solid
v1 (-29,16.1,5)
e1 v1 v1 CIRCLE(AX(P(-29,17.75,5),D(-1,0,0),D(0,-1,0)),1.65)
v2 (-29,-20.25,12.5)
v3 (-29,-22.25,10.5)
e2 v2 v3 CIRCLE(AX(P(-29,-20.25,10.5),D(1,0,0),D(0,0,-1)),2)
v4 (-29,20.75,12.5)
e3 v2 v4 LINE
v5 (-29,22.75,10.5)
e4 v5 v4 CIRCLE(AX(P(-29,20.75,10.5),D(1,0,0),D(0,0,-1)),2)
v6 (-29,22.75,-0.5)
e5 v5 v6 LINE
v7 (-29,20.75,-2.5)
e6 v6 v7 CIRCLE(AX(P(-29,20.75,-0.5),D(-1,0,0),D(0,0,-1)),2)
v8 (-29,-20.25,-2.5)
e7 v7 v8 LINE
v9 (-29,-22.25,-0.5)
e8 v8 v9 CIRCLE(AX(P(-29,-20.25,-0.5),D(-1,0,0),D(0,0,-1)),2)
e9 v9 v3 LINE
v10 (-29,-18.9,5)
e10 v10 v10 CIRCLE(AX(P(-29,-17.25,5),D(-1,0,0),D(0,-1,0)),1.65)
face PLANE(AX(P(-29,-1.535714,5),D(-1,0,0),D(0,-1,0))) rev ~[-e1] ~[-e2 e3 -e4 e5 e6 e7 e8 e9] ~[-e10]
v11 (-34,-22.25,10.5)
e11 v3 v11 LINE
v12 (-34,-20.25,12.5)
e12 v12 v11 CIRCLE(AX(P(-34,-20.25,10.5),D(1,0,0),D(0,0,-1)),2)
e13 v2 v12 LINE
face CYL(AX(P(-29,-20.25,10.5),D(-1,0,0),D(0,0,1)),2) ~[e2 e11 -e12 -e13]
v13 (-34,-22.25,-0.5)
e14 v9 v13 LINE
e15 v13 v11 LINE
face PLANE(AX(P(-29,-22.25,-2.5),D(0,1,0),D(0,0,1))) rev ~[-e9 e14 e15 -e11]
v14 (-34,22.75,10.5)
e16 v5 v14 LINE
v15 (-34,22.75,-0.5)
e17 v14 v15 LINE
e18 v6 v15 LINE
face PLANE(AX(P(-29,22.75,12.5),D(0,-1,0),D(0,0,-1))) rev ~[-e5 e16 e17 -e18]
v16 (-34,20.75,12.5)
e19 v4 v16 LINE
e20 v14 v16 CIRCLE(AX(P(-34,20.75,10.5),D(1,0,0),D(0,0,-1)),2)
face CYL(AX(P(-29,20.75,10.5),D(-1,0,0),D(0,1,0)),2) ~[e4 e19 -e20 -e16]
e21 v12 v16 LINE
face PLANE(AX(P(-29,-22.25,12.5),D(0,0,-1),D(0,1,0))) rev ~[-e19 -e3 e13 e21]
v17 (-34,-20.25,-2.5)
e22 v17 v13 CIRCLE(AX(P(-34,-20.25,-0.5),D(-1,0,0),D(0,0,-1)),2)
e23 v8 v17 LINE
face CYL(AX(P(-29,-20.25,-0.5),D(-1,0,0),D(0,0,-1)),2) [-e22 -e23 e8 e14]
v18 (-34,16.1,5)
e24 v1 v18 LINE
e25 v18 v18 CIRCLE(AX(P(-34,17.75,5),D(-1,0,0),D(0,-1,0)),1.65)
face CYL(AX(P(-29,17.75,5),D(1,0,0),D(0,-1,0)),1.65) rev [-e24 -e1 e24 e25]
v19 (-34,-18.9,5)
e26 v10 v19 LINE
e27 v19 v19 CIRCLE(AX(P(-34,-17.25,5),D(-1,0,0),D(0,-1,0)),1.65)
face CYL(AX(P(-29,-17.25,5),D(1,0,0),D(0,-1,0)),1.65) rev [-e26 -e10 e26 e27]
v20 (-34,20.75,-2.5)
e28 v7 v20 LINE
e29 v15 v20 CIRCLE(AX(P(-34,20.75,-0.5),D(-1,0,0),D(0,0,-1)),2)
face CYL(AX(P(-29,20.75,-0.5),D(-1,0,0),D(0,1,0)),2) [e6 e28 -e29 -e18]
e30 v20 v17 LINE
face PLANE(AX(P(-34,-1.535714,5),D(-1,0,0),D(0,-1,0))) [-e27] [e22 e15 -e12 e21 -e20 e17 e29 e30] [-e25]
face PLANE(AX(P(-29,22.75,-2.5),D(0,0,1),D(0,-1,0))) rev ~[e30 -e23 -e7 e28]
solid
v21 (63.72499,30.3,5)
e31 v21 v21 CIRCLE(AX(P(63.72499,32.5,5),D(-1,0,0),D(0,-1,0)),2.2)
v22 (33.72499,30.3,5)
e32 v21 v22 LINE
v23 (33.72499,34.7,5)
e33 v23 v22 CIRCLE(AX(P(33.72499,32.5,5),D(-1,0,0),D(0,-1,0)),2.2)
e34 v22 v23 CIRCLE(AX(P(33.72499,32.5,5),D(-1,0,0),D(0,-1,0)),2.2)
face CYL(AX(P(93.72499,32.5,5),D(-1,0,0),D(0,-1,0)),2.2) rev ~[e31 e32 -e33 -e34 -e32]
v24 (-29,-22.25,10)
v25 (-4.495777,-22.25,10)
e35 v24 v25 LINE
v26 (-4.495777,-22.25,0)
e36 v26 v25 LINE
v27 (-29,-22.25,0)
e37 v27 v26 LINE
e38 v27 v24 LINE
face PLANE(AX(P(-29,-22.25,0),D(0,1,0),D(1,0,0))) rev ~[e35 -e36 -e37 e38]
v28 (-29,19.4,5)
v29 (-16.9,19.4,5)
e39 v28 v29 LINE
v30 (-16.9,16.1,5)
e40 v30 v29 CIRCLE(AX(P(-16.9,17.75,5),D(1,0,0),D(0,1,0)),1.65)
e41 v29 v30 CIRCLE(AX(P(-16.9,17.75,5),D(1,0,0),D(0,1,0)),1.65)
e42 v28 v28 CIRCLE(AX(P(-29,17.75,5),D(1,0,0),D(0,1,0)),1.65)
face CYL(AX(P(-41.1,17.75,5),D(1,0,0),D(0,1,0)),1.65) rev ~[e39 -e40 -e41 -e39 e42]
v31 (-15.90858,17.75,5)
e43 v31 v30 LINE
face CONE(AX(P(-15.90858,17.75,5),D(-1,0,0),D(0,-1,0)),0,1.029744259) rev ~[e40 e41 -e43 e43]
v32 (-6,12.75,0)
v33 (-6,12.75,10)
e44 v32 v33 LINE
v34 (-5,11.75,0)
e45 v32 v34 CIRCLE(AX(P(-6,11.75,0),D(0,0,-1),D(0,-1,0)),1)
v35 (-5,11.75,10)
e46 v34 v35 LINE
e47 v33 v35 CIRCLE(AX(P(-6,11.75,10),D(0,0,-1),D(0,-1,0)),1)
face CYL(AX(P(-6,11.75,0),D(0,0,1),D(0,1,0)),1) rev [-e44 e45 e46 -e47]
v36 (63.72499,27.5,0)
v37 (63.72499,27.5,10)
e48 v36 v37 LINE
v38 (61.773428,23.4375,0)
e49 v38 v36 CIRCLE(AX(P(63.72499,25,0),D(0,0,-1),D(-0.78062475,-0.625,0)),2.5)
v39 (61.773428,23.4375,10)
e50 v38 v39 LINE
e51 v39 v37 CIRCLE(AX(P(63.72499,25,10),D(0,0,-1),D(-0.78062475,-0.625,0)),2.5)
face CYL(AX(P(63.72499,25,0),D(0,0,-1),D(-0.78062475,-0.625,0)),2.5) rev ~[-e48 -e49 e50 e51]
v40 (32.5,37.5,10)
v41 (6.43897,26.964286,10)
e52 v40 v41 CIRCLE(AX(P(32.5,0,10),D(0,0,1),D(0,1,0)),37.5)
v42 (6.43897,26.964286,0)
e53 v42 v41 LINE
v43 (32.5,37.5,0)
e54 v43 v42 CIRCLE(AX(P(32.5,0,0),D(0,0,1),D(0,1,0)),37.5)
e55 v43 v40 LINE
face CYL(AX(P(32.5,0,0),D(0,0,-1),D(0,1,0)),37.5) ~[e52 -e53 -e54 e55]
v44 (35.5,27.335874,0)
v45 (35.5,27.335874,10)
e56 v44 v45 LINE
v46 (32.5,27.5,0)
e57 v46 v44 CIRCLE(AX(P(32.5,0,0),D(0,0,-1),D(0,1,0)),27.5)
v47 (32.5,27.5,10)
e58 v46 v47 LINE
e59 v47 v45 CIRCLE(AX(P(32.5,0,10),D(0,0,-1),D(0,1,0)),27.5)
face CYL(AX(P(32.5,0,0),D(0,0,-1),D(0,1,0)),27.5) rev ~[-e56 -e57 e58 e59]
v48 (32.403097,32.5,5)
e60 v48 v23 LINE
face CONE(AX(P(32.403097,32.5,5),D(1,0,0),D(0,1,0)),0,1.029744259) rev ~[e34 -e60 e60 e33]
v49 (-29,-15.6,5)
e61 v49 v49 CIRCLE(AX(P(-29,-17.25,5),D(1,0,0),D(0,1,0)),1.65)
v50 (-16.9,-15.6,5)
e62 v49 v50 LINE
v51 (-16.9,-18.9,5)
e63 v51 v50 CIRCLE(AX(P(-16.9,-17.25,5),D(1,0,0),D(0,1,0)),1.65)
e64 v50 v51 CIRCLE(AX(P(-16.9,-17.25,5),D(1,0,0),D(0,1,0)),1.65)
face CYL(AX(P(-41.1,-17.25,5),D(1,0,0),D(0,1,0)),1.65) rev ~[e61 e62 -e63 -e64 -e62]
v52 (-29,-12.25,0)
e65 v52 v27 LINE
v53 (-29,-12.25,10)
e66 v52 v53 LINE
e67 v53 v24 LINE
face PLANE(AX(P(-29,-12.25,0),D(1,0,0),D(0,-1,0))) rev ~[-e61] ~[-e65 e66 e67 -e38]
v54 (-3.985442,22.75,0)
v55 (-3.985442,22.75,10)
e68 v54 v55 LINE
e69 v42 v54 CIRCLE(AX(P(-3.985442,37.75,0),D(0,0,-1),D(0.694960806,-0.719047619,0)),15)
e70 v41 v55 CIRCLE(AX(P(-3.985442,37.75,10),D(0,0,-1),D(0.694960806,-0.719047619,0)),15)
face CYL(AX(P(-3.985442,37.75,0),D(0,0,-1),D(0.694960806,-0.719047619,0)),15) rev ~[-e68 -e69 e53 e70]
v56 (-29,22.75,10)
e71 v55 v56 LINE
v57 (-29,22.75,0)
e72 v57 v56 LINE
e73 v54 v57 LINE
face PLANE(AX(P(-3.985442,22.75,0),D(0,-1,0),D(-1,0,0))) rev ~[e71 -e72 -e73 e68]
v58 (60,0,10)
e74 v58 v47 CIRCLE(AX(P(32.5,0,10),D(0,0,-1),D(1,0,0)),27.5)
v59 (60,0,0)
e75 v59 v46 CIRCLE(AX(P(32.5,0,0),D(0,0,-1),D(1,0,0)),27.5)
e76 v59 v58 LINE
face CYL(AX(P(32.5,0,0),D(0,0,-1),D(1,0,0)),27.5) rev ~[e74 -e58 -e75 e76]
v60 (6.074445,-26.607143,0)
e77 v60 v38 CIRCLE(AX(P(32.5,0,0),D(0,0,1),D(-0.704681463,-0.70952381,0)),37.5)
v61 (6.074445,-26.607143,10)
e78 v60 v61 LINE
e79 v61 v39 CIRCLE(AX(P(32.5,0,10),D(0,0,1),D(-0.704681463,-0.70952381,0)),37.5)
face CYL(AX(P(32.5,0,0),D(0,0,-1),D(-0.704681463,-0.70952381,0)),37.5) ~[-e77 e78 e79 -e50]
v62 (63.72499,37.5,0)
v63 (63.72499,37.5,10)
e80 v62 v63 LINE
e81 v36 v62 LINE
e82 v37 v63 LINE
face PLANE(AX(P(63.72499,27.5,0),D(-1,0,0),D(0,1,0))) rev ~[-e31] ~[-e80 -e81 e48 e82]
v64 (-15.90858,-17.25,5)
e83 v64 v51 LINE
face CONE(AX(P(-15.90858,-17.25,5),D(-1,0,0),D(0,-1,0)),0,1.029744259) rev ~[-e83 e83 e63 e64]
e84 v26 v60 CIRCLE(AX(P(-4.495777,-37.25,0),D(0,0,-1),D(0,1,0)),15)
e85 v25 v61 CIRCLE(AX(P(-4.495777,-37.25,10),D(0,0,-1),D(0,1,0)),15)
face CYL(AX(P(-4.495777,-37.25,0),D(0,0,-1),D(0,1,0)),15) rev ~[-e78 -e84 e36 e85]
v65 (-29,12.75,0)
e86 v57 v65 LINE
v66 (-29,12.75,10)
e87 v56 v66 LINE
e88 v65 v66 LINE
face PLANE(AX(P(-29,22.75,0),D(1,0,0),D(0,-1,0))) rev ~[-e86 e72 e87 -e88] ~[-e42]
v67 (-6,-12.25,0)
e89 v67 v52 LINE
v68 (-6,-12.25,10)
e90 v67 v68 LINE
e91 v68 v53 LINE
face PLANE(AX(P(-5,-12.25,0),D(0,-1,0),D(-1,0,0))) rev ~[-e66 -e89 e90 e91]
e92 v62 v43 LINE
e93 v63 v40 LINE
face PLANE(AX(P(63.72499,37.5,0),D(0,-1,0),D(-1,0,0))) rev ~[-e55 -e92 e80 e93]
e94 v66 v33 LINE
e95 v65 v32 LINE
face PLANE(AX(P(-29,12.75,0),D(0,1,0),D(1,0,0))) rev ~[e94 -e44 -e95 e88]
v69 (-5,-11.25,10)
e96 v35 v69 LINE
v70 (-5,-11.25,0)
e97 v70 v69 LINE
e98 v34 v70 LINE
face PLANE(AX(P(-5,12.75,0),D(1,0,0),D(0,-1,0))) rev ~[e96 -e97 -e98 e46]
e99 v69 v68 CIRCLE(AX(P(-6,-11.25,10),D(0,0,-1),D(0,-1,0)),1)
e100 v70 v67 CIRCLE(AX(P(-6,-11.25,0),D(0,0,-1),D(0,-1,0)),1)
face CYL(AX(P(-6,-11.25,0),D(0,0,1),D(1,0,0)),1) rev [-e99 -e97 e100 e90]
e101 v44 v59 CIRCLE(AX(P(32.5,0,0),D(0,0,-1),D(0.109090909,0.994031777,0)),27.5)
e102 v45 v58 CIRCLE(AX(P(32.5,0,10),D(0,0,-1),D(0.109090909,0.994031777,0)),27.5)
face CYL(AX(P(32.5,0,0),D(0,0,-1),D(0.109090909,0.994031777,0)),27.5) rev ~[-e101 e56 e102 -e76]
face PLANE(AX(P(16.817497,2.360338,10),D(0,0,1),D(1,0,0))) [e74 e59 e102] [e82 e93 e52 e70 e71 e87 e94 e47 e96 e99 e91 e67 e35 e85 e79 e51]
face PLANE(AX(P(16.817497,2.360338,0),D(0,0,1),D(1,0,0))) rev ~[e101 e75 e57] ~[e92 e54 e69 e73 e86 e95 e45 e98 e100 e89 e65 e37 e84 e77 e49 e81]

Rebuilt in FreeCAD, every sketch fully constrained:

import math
import FreeCAD as App
import Part
import Sketcher

V = App.Vector


def edges_at(feature, points):
    """Names of the edges that pass closest to the given points."""
    edges = feature.Shape.Edges
    near = lambda p: min(range(len(edges)), key=lambda i: edges[i].distToShape(Part.Vertex(*p))[0])
    return sorted({f"Edge{near(p) + 1}" for p in points})


def add_polygon(sketch, points):
    """Adds a closed chain of lines whose ends are joined by coincident constraints."""
    first, n = sketch.GeometryCount, len(points)
    for a, b in zip(points, points[1:] + points[:1]):
        sketch.addGeometry(Part.LineSegment(App.Vector(*a, 0), App.Vector(*b, 0)), False)
    for i in range(n):
        sketch.addConstraint(Sketcher.Constraint("Coincident", first + i, 2, first + (i + 1) % n, 1))

doc = App.newDocument("Part")
body = doc.addObject("PartDesign::Body", "Body")

# Sketch on XY plane
sketch1 = doc.addObject("Sketcher::SketchObject", "Sketch")
body.addObject(sketch1)
sketch1.AttachmentSupport = (doc.XY_Plane, [""])
sketch1.MapMode = "FlatFace"
sketch1.addGeometry(Part.LineSegment(V(-29, 12.8, 0), V(-5, 12.8, 0)), False)
sketch1.addGeometry(Part.LineSegment(V(-5, 12.8, 0), V(-5, -12.2, 0)), False)
sketch1.addGeometry(Part.LineSegment(V(-5, -12.2, 0), V(-29, -12.2, 0)), False)
sketch1.addGeometry(Part.LineSegment(V(-29, -12.2, 0), V(-29, -22.2, 0)), False)
sketch1.addGeometry(Part.LineSegment(V(-29, -22.2, 0), V(-4.5, -22.2, 0)), False)
sketch1.addGeometry(Part.ArcOfCircle(Part.Circle(V(-4.5, -37.3, 0), V(0, 0, 1), 15), math.radians(45), math.radians(90)), False)
sketch1.addGeometry(Part.ArcOfCircle(Part.Circle(V(32.5, 0, 0), V(0, 0, 1), 37.5), math.radians(-135), math.radians(39)), False)
sketch1.addGeometry(Part.ArcOfCircle(Part.Circle(V(63.7, 25, 0), V(0, 0, 1), 2.5), math.radians(90), math.radians(219)), False)
sketch1.addGeometry(Part.LineSegment(V(63.7, 27.5, 0), V(63.7, 37.5, 0)), False)
sketch1.addGeometry(Part.LineSegment(V(63.7, 37.5, 0), V(32.5, 37.5, 0)), False)
sketch1.addGeometry(Part.ArcOfCircle(Part.Circle(V(32.5, 0, 0), V(0, 0, 1), 37.5), math.radians(90), math.radians(134)), False)
sketch1.addGeometry(Part.ArcOfCircle(Part.Circle(V(-4, 37.8, 0), V(0, 0, 1), 15), math.radians(-90), math.radians(-46)), False)
sketch1.addGeometry(Part.LineSegment(V(-4, 22.8, 0), V(-29, 22.8, 0)), False)
sketch1.addGeometry(Part.LineSegment(V(-29, 22.8, 0), V(-29, 12.8, 0)), False)
sketch1.addGeometry(Part.ArcOfCircle(Part.Circle(V(32.5, 0, 0), V(0, 0, 1), 27.5), math.radians(0), math.radians(84)), False)
sketch1.addGeometry(Part.ArcOfCircle(Part.Circle(V(32.5, 0, 0), V(0, 0, 1), 27.5), math.radians(90), math.radians(360)), False)
sketch1.addGeometry(Part.ArcOfCircle(Part.Circle(V(32.5, 0, 0), V(0, 0, 1), 27.5), math.radians(83.74), math.radians(90)), False)
sketch1.addConstraint(Sketcher.Constraint("Coincident", 0, 2, 1, 1))
sketch1.addConstraint(Sketcher.Constraint("Coincident", 1, 2, 2, 1))
sketch1.addConstraint(Sketcher.Constraint("Coincident", 2, 2, 3, 1))
sketch1.addConstraint(Sketcher.Constraint("Coincident", 3, 2, 4, 1))
sketch1.addConstraint(Sketcher.Constraint("Tangent", 4, 2, 5, 2))
sketch1.addConstraint(Sketcher.Constraint("Tangent", 5, 1, 6, 1))
sketch1.addConstraint(Sketcher.Constraint("Tangent", 6, 2, 7, 2))
sketch1.addConstraint(Sketcher.Constraint("Coincident", 7, 1, 8, 1))
sketch1.addConstraint(Sketcher.Constraint("Coincident", 8, 2, 9, 1))
sketch1.addConstraint(Sketcher.Constraint("Tangent", 9, 2, 10, 1))
sketch1.addConstraint(Sketcher.Constraint("Tangent", 10, 2, 11, 2))
sketch1.addConstraint(Sketcher.Constraint("Tangent", 11, 1, 12, 1))
sketch1.addConstraint(Sketcher.Constraint("Coincident", 12, 2, 13, 1))
sketch1.addConstraint(Sketcher.Constraint("Coincident", 13, 2, 0, 1))
sketch1.addConstraint(Sketcher.Constraint("Tangent", 14, 1, 15, 2))
sketch1.addConstraint(Sketcher.Constraint("Tangent", 15, 1, 16, 2))
sketch1.addConstraint(Sketcher.Constraint("Tangent", 16, 1, 14, 2))
sketch1.addConstraint(Sketcher.Constraint("Horizontal", 0))
sketch1.addConstraint(Sketcher.Constraint("Vertical", 1))
sketch1.addConstraint(Sketcher.Constraint("Horizontal", 2))
sketch1.addConstraint(Sketcher.Constraint("Vertical", 3))
sketch1.addConstraint(Sketcher.Constraint("Horizontal", 4))
sketch1.addConstraint(Sketcher.Constraint("Vertical", 8))
sketch1.addConstraint(Sketcher.Constraint("Horizontal", 9))
sketch1.addConstraint(Sketcher.Constraint("Horizontal", 12))
sketch1.addConstraint(Sketcher.Constraint("Vertical", 13))
sketch1.addConstraint(Sketcher.Constraint("Coincident", 10, 3, 6, 3))
sketch1.addConstraint(Sketcher.Constraint("Coincident", 14, 3, 6, 3))
sketch1.addConstraint(Sketcher.Constraint("Equal", 6, 10))
sketch1.addConstraint(Sketcher.Constraint("Equal", 5, 11))
sketch1.addConstraint(Sketcher.Constraint("PointOnObject", 6, 3, -1))
sketch1.addConstraint(Sketcher.Constraint("PointOnObject", 14, 1, -1))
sketch1.addConstraint(Sketcher.Constraint("Horizontal", 7, 1, 15, 1))
sketch1.addConstraint(Sketcher.Constraint("Vertical", 3, 2, 12, 2))
sketch1.addConstraint(Sketcher.Constraint("Vertical", 9, 2, 15, 1))
sketch1.addConstraint(Sketcher.Constraint("Equal", 3, 8))
sketch1.addConstraint(Sketcher.Constraint("Equal", 8, 13))
sketch1.addConstraint(Sketcher.Constraint("Radius", 5, 15.0))
sketch1.addConstraint(Sketcher.Constraint("Radius", 6, 37.5))
sketch1.addConstraint(Sketcher.Constraint("Radius", 7, 2.5))
sketch1.addConstraint(Sketcher.Constraint("Radius", 14, 27.5))
sketch1.addConstraint(Sketcher.Constraint("DistanceX", 0, 1, 0, 2, 24.0))
sketch1.addConstraint(Sketcher.Constraint("DistanceY", 1, 2, 1, 1, 25.0))
sketch1.addConstraint(Sketcher.Constraint("DistanceX", 0, 2, -1, 1, 5.0))
sketch1.addConstraint(Sketcher.Constraint("DistanceX", -1, 1, 14, 1, 60.0))
sketch1.addConstraint(Sketcher.Constraint("DistanceX", 15, 1, 16, 1, 3.0))
sketch1.addConstraint(Sketcher.Constraint("DistanceY", 5, 3, -1, 1, 37.25))
sketch1.addConstraint(Sketcher.Constraint("DistanceX", 9, 2, 9, 1, 31.22499))
pad1 = doc.addObject("PartDesign::Pad", "Pad")
body.addObject(pad1)
pad1.Profile = sketch1
pad1.Length = 10

# Sketch on YZ plane
sketch2 = doc.addObject("Sketcher::SketchObject", "Sketch001")
body.addObject(sketch2)
sketch2.AttachmentSupport = (doc.YZ_Plane, [""])
sketch2.MapMode = "FlatFace"
sketch2.AttachmentOffset = App.Placement(V(0, 0, -29), App.Rotation())
sketch2.addGeometry(Part.Circle(V(17.8, 5, 0), V(0, 0, 1), 1.6), False)
sketch2.addConstraint(Sketcher.Constraint("Diameter", 0, 3.3))
sketch2.addConstraint(Sketcher.Constraint("DistanceY", -1, 1, 0, 3, 5.0))
sketch2.addConstraint(Sketcher.Constraint("DistanceX", -1, 1, 0, 3, 17.75))
doc.recompute()
hole = doc.addObject("PartDesign::Hole", "Hole")
body.addObject(hole)
hole.Profile = sketch2
hole.ThreadType = "None"
hole.Diameter = 3.3
hole.DepthType = "Dimension"
hole.Depth = 12.1
hole.DrillPoint = "Angled"
hole.DrillPointAngle = 118
hole.Reversed = True

# Sketch on YZ plane
sketch3 = doc.addObject("Sketcher::SketchObject", "Sketch002")
body.addObject(sketch3)
sketch3.AttachmentSupport = (doc.YZ_Plane, [""])
sketch3.MapMode = "FlatFace"
sketch3.AttachmentOffset = App.Placement(V(0, 0, -29), App.Rotation())
sketch3.addGeometry(Part.Circle(V(-17.2, 5, 0), V(0, 0, 1), 1.6), False)
sketch3.addConstraint(Sketcher.Constraint("Diameter", 0, 3.3))
sketch3.addConstraint(Sketcher.Constraint("DistanceY", -1, 1, 0, 3, 5.0))
sketch3.addConstraint(Sketcher.Constraint("DistanceX", 0, 3, -1, 1, 17.25))
doc.recompute()
hole2 = doc.addObject("PartDesign::Hole", "Hole001")
body.addObject(hole2)
hole2.Profile = sketch3
hole2.ThreadType = "None"
hole2.Diameter = 3.3
hole2.DepthType = "Dimension"
hole2.Depth = 12.1
hole2.DrillPoint = "Angled"
hole2.DrillPointAngle = 118
hole2.Reversed = True

# Sketch on YZ plane
sketch4 = doc.addObject("Sketcher::SketchObject", "Sketch003")
body.addObject(sketch4)
sketch4.AttachmentSupport = (doc.YZ_Plane, [""])
sketch4.MapMode = "FlatFace"
sketch4.AttachmentOffset = App.Placement(V(0, 0, 63.72499), App.Rotation())
sketch4.addGeometry(Part.Circle(V(32.5, 5, 0), V(0, 0, 1), 2.2), False)
sketch4.addConstraint(Sketcher.Constraint("Diameter", 0, 4.4))
sketch4.addConstraint(Sketcher.Constraint("DistanceY", -1, 1, 0, 3, 5.0))
sketch4.addConstraint(Sketcher.Constraint("DistanceX", -1, 1, 0, 3, 32.5))
doc.recompute()
hole3 = doc.addObject("PartDesign::Hole", "Hole002")
body.addObject(hole3)
hole3.Profile = sketch4
hole3.ThreadType = "None"
hole3.Diameter = 4.4
hole3.DepthType = "Dimension"
hole3.Depth = 30
hole3.DrillPoint = "Angled"
hole3.DrillPointAngle = 118
doc.recompute()

fillet = doc.addObject("PartDesign::Fillet", "Fillet")
body.addObject(fillet)
fillet.Base = (hole3, edges_at(hole3, [(-5, 12.75, 5), (-5, -12.25, 5)]))
fillet.Radius = 1
body2 = doc.addObject("PartDesign::Body", "Body001")

# Sketch on YZ plane
sketch5 = doc.addObject("Sketcher::SketchObject", "Sketch004")
body2.addObject(sketch5)
sketch5.AttachmentSupport = (doc.getObject("YZ_Plane001"), [""])
sketch5.MapMode = "FlatFace"
sketch5.AttachmentOffset = App.Placement(V(0, 0, -29), App.Rotation())
add_polygon(sketch5, [(22.8, 12.5), (22.8, -2.5), (-22.2, -2.5), (-22.2, 12.5)])  # lines 0-3
sketch5.addGeometry(Part.Circle(V(17.8, 5, 0), V(0, 0, 1), 1.6), False)  # 4
sketch5.addGeometry(Part.Circle(V(-17.2, 5, 0), V(0, 0, 1), 1.6), False)  # 5
sketch5.addConstraint(Sketcher.Constraint("Vertical", 0))
sketch5.addConstraint(Sketcher.Constraint("Horizontal", 1))
sketch5.addConstraint(Sketcher.Constraint("Vertical", 2))
sketch5.addConstraint(Sketcher.Constraint("Horizontal", 3))
sketch5.addConstraint(Sketcher.Constraint("Equal", 4, 5))
sketch5.addConstraint(Sketcher.Constraint("Horizontal", 4, 3, 5, 3))
sketch5.addConstraint(Sketcher.Constraint("Diameter", 4, 3.3))
sketch5.addConstraint(Sketcher.Constraint("DistanceX", 1, 2, 1, 1, 45.0))
sketch5.addConstraint(Sketcher.Constraint("DistanceY", 0, 2, 0, 1, 15.0))
sketch5.addConstraint(Sketcher.Constraint("DistanceY", -1, 1, 4, 3, 5.0))
sketch5.addConstraint(Sketcher.Constraint("DistanceX", 5, 3, 4, 3, 35.0))
sketch5.addConstraint(Sketcher.Constraint("DistanceX", 4, 3, 0, 2, 5.0))
sketch5.addConstraint(Sketcher.Constraint("DistanceY", 0, 2, -1, 1, 2.5))
sketch5.addConstraint(Sketcher.Constraint("DistanceX", -1, 1, 4, 3, 17.75))
pad2 = doc.addObject("PartDesign::Pad", "Pad001")
body2.addObject(pad2)
pad2.Profile = sketch5
pad2.Length = 5
pad2.Reversed = True
doc.recompute()

fillet2 = doc.addObject("PartDesign::Fillet", "Fillet001")
body2.addObject(fillet2)
fillet2.Base = (pad2, edges_at(pad2, [
    (-31.5, 22.75, 12.5),
    (-31.5, -22.25, 12.5),
    (-31.5, -22.25, -2.5),
    (-31.5, 22.75, -2.5),
]))
fillet2.Radius = 2

doc.recompute()
